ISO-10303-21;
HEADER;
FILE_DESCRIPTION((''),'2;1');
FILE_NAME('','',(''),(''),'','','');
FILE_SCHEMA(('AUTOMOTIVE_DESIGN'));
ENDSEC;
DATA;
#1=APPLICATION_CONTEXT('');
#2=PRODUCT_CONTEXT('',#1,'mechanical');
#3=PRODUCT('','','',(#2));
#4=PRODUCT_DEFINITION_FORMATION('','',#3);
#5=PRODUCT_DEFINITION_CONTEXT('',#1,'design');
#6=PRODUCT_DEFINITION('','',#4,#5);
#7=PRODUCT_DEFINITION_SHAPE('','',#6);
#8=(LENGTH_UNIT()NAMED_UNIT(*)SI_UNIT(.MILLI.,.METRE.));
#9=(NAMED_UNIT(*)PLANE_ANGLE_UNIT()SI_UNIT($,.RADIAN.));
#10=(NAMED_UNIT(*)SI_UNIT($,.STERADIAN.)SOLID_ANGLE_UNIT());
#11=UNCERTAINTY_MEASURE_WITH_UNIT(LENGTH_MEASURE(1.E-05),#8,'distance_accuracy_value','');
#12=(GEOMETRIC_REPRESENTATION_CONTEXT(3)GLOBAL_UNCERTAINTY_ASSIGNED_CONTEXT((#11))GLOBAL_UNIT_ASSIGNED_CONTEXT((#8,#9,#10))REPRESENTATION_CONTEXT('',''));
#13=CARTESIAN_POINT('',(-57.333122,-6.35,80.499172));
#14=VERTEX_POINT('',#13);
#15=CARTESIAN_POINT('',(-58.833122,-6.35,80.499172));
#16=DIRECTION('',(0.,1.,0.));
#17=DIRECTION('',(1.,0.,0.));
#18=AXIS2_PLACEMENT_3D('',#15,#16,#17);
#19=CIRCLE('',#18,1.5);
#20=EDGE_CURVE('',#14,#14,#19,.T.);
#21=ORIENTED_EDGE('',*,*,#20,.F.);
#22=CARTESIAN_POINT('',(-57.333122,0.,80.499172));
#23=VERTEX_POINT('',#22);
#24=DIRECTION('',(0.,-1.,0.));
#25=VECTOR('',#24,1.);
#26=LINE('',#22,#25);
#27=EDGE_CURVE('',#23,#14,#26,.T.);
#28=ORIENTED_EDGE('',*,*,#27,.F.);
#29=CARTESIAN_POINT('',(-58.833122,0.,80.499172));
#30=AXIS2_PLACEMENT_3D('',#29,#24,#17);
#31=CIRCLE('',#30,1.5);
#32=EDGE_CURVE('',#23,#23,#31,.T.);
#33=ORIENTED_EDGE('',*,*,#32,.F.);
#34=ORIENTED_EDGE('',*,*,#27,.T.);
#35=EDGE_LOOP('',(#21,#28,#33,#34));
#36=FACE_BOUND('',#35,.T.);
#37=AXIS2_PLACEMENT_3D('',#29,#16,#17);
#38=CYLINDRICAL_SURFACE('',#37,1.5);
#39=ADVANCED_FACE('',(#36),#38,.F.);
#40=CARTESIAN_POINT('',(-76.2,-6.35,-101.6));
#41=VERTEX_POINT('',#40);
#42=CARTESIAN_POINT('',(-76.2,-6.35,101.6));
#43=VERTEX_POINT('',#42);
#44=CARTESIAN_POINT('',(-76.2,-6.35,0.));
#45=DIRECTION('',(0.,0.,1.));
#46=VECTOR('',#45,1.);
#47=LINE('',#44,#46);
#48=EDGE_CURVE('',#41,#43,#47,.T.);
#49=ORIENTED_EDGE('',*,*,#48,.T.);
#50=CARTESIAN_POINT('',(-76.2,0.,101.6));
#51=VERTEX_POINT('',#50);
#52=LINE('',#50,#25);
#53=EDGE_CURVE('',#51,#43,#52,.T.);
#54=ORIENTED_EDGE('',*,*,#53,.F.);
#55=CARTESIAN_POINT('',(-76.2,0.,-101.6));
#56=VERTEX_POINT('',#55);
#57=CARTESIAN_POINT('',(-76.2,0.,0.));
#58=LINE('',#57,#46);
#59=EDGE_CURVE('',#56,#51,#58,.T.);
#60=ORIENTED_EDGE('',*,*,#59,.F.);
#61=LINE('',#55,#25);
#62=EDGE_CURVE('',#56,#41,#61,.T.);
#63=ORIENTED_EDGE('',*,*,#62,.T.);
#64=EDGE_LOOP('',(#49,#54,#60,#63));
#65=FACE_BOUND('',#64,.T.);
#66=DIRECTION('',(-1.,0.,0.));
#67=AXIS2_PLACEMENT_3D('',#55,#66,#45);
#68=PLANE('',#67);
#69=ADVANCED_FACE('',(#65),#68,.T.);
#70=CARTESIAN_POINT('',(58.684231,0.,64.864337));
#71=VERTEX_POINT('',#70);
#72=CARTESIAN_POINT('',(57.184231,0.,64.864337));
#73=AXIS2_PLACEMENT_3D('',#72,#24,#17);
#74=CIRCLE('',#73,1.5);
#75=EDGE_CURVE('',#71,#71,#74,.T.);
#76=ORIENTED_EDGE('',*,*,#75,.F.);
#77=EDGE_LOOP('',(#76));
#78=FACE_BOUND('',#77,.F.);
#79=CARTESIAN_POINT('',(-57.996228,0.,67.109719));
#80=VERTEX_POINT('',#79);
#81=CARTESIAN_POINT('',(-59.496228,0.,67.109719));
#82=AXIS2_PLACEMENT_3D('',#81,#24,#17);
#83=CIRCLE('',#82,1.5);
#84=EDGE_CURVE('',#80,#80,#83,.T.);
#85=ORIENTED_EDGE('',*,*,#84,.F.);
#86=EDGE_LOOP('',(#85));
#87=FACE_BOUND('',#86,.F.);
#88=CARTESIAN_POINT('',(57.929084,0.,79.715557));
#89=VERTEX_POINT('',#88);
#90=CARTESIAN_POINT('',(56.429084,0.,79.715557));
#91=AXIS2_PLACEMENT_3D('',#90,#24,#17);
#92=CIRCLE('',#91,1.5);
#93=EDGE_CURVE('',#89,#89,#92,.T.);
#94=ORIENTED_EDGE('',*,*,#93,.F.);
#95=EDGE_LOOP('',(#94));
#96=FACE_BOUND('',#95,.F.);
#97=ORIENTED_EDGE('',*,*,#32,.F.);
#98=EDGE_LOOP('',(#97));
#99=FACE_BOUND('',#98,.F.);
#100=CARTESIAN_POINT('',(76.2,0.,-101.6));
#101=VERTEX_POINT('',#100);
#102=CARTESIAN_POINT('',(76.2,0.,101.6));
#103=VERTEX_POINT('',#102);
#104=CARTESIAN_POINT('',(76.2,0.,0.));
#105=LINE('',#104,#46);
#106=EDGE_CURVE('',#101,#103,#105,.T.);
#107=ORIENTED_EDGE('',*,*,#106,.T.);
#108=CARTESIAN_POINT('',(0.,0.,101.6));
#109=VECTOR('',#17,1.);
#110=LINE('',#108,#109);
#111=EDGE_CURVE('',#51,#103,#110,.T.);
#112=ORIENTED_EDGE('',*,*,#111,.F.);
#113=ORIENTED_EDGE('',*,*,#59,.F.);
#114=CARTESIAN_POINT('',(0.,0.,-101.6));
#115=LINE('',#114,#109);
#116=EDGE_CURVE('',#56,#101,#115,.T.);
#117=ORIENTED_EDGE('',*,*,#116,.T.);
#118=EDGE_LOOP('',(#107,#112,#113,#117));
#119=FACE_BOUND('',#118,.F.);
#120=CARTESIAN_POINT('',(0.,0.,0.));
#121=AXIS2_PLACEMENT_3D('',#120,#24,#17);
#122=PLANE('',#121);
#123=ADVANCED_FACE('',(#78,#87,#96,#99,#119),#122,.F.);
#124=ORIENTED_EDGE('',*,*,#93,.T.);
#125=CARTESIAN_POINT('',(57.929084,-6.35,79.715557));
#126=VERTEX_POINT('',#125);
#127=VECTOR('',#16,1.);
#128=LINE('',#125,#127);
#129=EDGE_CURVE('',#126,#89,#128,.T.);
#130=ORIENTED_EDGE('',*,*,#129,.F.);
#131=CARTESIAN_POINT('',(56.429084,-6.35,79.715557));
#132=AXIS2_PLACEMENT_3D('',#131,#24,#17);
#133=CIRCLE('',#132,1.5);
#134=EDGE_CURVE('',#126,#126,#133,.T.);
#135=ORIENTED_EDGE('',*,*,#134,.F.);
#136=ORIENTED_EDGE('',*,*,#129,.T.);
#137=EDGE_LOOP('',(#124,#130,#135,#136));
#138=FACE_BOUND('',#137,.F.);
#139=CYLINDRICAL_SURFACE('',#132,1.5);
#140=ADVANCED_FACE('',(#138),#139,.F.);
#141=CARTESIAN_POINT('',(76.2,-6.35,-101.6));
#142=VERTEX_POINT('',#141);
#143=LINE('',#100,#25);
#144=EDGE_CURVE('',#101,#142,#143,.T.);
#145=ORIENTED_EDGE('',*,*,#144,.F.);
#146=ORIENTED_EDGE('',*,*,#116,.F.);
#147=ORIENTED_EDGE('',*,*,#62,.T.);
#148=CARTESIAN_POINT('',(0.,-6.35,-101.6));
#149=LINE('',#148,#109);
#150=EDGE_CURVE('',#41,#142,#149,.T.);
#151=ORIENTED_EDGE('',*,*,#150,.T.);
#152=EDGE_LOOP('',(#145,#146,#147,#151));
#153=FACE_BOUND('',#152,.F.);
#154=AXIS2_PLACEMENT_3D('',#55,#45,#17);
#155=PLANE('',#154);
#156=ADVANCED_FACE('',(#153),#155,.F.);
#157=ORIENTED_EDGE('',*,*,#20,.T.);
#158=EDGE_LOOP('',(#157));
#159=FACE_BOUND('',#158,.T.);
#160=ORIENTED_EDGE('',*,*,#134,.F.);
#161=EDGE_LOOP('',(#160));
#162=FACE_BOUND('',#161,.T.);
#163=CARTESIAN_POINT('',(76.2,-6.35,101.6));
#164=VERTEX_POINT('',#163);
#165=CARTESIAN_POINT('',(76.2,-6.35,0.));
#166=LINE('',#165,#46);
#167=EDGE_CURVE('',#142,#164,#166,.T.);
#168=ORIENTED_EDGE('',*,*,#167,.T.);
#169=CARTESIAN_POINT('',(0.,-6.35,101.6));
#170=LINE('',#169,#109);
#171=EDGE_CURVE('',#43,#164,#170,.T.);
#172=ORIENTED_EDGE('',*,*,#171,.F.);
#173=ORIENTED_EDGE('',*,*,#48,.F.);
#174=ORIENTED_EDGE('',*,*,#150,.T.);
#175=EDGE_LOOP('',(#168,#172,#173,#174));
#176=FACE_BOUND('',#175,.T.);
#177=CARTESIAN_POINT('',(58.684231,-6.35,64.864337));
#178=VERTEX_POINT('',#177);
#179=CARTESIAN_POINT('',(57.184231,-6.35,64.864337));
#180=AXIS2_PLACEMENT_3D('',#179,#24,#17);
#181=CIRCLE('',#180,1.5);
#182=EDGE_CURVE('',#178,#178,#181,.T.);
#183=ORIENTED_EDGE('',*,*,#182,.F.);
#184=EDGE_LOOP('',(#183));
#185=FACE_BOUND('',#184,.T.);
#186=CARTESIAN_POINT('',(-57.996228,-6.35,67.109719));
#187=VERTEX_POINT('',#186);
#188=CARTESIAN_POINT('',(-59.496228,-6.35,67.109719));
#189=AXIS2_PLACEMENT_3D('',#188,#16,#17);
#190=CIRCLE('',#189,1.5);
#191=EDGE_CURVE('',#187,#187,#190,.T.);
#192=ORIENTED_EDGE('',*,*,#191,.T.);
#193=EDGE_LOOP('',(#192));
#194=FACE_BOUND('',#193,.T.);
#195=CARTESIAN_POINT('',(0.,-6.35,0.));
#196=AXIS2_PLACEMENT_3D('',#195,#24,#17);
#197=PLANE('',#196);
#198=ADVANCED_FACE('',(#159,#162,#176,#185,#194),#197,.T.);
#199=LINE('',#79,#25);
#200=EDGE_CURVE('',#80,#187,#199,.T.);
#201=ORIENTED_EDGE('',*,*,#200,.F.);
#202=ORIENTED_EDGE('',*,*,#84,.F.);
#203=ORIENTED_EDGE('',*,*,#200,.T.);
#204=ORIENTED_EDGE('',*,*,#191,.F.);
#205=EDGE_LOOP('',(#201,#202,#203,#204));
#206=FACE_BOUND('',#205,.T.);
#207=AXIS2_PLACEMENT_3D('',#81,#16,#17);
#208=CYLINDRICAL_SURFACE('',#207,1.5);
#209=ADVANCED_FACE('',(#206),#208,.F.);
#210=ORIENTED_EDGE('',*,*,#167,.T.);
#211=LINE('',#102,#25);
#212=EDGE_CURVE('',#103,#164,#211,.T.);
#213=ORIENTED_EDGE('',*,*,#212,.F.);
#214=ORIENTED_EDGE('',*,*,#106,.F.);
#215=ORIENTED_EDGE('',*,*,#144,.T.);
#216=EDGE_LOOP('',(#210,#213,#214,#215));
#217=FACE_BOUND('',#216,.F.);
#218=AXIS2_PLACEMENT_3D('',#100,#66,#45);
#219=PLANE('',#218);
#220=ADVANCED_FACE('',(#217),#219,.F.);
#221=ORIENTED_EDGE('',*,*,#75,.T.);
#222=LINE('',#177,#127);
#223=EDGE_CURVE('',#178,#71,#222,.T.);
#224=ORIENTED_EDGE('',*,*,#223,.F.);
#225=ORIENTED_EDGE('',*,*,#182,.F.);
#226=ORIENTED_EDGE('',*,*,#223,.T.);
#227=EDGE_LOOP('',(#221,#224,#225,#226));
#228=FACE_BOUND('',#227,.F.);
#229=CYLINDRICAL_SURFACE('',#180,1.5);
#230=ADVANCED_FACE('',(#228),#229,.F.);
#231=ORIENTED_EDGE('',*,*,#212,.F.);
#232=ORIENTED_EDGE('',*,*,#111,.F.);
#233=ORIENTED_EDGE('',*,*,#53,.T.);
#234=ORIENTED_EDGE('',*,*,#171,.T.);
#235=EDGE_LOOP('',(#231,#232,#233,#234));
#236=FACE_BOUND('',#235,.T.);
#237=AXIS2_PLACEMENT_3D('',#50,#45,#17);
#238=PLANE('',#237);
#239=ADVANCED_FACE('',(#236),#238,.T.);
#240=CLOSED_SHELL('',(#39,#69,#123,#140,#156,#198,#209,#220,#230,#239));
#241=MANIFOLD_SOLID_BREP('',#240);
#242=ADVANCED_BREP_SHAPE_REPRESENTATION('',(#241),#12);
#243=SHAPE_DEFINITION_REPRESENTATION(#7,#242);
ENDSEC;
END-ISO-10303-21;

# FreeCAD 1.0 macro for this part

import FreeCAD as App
import Part
import Sketcher
Q = App.Units.Quantity

doc = App.newDocument("Part")
body = doc.addObject("PartDesign::Body", "Body")

# Sketch on XZ plane
sketch1 = body.newObject("Sketcher::SketchObject", "Sketch")
sketch1.AttachmentSupport = (doc.getObject("XZ_Plane"), [""])
sketch1.MapMode = "FlatFace"
sketch1.addGeometry([
    Part.LineSegment(App.Vector(-76.2, 101.6, 0), App.Vector(-76.2, -101.6, 0)),
    Part.LineSegment(App.Vector(-76.2, -101.6, 0), App.Vector(76.2, -101.6, 0)),
    Part.LineSegment(App.Vector(76.2, -101.6, 0), App.Vector(76.2, 101.6, 0)),
    Part.LineSegment(App.Vector(76.2, 101.6, 0), App.Vector(-76.2, 101.6, 0)),
], False)
sketch1.addConstraint([
    Sketcher.Constraint("Coincident", 0, 2, 1, 1),
    Sketcher.Constraint("Coincident", 1, 2, 2, 1),
    Sketcher.Constraint("Coincident", 2, 2, 3, 1),
    Sketcher.Constraint("Coincident", 3, 2, 0, 1),
    Sketcher.Constraint("Vertical", 0),
    Sketcher.Constraint("Horizontal", 1),
    Sketcher.Constraint("Vertical", 2),
    Sketcher.Constraint("Horizontal", 3),
    Sketcher.Constraint("Symmetric", 0, 2, 2, 2, -1, 1),
    Sketcher.Constraint("DistanceX", 1, 1, 1, 2, Q("152.4 mm")),
    Sketcher.Constraint("DistanceY", 0, 2, 0, 1, Q("203.2 mm")),
])
pad1 = body.newObject("PartDesign::Pad", "Pad")
pad1.Profile = sketch1
pad1.Length = 6.35

# Sketch on XZ plane
sketch2 = body.newObject("Sketcher::SketchObject", "Sketch001")
sketch2.AttachmentSupport = (doc.getObject("XZ_Plane"), [""])
sketch2.MapMode = "FlatFace"
sketch2.addGeometry([
    Part.Circle(App.Vector(-58.833122, 80.499172, 0), App.Vector(0, 0, 1), 1.5),
    Part.Circle(App.Vector(-59.496228, 67.109719, 0), App.Vector(0, 0, 1), 1.5),
], False)
sketch2.addConstraint([
    Sketcher.Constraint("Equal", 0, 1),
    Sketcher.Constraint("Diameter", 0, Q("3 mm")),
    Sketcher.Constraint("DistanceY", -1, 1, 0, 3, Q("80.499172 mm")),
    Sketcher.Constraint("DistanceX", 1, 3, -1, 1, Q("59.496228 mm")),
    Sketcher.Constraint("DistanceY", -1, 1, 1, 3, Q("67.109719 mm")),
    Sketcher.Constraint("DistanceX", 0, 3, -1, 1, Q("58.833122 mm")),
])
pocket1 = body.newObject("PartDesign::Pocket", "Pocket")
pocket1.Profile = sketch2
pocket1.Length = 14.2
pocket1.Reversed = True

# Sketch on XZ plane
sketch3 = body.newObject("Sketcher::SketchObject", "Sketch002")
sketch3.AttachmentSupport = (doc.getObject("XZ_Plane"), [""])
sketch3.MapMode = "FlatFace"
sketch3.addGeometry([
    Part.Circle(App.Vector(57.177279, 77.691041, 0), App.Vector(0, 0, 1), 1.5),
    Part.Circle(App.Vector(57.177279, 64.519793, 0), App.Vector(0, 0, 1), 1.5),
], False)
sketch3.addConstraint([
    Sketcher.Constraint("Equal", 0, 1),
    Sketcher.Constraint("Vertical", 0, 3, 1, 3),
    Sketcher.Constraint("Diameter", 0, Q("3 mm")),
    Sketcher.Constraint("DistanceX", -1, 1, 0, 3, Q("57.177279 mm")),
    Sketcher.Constraint("DistanceY", -1, 1, 0, 3, Q("77.691041 mm")),
    Sketcher.Constraint("DistanceY", -1, 1, 1, 3, Q("64.519793 mm")),
])
pocket2 = body.newObject("PartDesign::Pocket", "Pocket001")
pocket2.Profile = sketch3
pocket2.Length = 25

# Sketch on XZ plane
sketch4 = body.newObject("Sketcher::SketchObject", "Sketch003")
sketch4.AttachmentSupport = (doc.getObject("XZ_Plane"), [""])
sketch4.MapMode = "FlatFace"
sketch4.AttachmentOffset = App.Placement(App.Vector(0, 0, 6.35), App.Rotation())
sketch4.addGeometry([
    Part.Circle(App.Vector(56.429084, 79.715557, 0), App.Vector(0, 0, 1), 1.5),
    Part.Circle(App.Vector(57.184231, 64.864337, 0), App.Vector(0, 0, 1), 1.5),
], False)
sketch4.addConstraint([
    Sketcher.Constraint("Equal", 0, 1),
    Sketcher.Constraint("Diameter", 0, Q("3 mm")),
    Sketcher.Constraint("DistanceX", -1, 1, 1, 3, Q("57.184231 mm")),
    Sketcher.Constraint("DistanceY", 1, 3, 0, 3, Q("14.85122 mm")),
    Sketcher.Constraint("DistanceX", -1, 1, 0, 3, Q("56.429084 mm")),
    Sketcher.Constraint("DistanceY", -1, 1, 0, 3, Q("79.715557 mm")),
])
pocket3 = body.newObject("PartDesign::Pocket", "Pocket002")
pocket3.Profile = sketch4
pocket3.Length = 25

doc.recompute()
